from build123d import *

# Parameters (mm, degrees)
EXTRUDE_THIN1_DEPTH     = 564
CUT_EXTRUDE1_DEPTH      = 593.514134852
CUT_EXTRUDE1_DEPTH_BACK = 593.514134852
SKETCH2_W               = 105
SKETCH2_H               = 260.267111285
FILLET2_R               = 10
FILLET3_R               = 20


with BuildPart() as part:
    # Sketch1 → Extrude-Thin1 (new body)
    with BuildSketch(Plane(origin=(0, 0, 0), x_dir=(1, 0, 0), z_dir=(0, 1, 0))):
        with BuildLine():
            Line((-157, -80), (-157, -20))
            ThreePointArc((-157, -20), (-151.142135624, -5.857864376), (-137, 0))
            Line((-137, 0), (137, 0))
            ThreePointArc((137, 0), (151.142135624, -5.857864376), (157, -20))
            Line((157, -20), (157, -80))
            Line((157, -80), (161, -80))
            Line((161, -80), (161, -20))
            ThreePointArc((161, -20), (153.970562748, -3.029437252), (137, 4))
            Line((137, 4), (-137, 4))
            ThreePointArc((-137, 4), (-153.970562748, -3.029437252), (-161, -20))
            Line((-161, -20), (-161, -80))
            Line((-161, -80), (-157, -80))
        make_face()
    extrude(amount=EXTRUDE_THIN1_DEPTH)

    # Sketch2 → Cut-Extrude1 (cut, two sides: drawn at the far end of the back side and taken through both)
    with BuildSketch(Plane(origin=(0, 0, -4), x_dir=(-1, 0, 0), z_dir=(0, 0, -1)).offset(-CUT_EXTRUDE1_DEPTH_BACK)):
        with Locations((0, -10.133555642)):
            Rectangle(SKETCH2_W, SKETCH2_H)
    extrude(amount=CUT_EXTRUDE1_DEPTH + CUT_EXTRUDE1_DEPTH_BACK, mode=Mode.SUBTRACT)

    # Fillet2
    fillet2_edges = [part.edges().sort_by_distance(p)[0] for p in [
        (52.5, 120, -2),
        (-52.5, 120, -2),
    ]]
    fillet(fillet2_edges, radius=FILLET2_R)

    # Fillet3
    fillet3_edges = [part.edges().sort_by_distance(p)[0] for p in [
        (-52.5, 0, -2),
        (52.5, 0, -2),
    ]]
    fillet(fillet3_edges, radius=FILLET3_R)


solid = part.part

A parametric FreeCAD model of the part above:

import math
import FreeCAD as App
import Part
import Sketcher

V = App.Vector
Q = App.Units.Quantity


def edges_at(feature, points):
    """Names of the edges that pass closest to the given points."""
    edges = feature.Shape.Edges
    near = lambda p: min(range(len(edges)), key=lambda i: edges[i].distToShape(Part.Vertex(*p))[0])
    return sorted({f"Edge{near(p) + 1}" for p in points})

doc = App.newDocument("Part")
params = doc.addObject("Spreadsheet::Sheet", "Params")
for row, (alias, value) in enumerate([
    ("sketch1_radius", "20 mm"),
    ("sketch1_radius2", "24 mm"),
    ("sketch1_width", "274 mm"),
    ("sketch1_height", "60 mm"),
    ("pad1_length", "564 mm"),
    ("sketch2_width", "105 mm"),
    ("fillet_radius", "10 mm"),
    ("fillet2_radius", "20 mm"),
], start=1):
    params.set(f"A{row}", alias)
    params.set(f"B{row}", "=" + value)
    params.setAlias(f"B{row}", alias)

body = doc.addObject("PartDesign::Body", "Body")

sketch1 = doc.addObject("Sketcher::SketchObject", "Sketch")
body.addObject(sketch1)
sketch1.AttachmentSupport = (doc.XZ_Plane, [""])
sketch1.MapMode = "FlatFace"
sketch1.addGeometry([
    Part.LineSegment(V(-157, 80, 0), V(-157, 20, 0)),
    Part.ArcOfCircle(Part.Circle(V(-137, 20, 0), V(0, 0, 1), 20), math.radians(180), math.radians(270)),
    Part.LineSegment(V(-137, 0, 0), V(137, 0, 0)),
    Part.ArcOfCircle(Part.Circle(V(137, 20, 0), V(0, 0, 1), 20), math.radians(-90), math.radians(0)),
    Part.LineSegment(V(157, 20, 0), V(157, 80, 0)),
    Part.LineSegment(V(157, 80, 0), V(161, 80, 0)),
    Part.LineSegment(V(161, 80, 0), V(161, 20, 0)),
    Part.ArcOfCircle(Part.Circle(V(137, 20, 0), V(0, 0, 1), 24), math.radians(-90), math.radians(0)),
    Part.LineSegment(V(137, -4, 0), V(-137, -4, 0)),
    Part.ArcOfCircle(Part.Circle(V(-137, 20, 0), V(0, 0, 1), 24), math.radians(-180), math.radians(-90)),
    Part.LineSegment(V(-161, 20, 0), V(-161, 80, 0)),
    Part.LineSegment(V(-161, 80, 0), V(-157, 80, 0)),
], False)
sketch1.addConstraint([
    Sketcher.Constraint("Tangent", 0, 2, 1, 1),
    Sketcher.Constraint("Tangent", 1, 2, 2, 1),
    Sketcher.Constraint("Tangent", 2, 2, 3, 1),
    Sketcher.Constraint("Tangent", 3, 2, 4, 1),
    Sketcher.Constraint("Coincident", 4, 2, 5, 1),
    Sketcher.Constraint("Coincident", 5, 2, 6, 1),
    Sketcher.Constraint("Tangent", 6, 2, 7, 2),
    Sketcher.Constraint("Tangent", 7, 1, 8, 1),
    Sketcher.Constraint("Tangent", 8, 2, 9, 2),
    Sketcher.Constraint("Tangent", 9, 1, 10, 1),
    Sketcher.Constraint("Coincident", 10, 2, 11, 1),
    Sketcher.Constraint("Coincident", 11, 2, 0, 1),
    Sketcher.Constraint("Vertical", 0),
    Sketcher.Constraint("Horizontal", 2),
    Sketcher.Constraint("Vertical", 4),
    Sketcher.Constraint("Horizontal", 5),
    Sketcher.Constraint("Vertical", 6),
    Sketcher.Constraint("Horizontal", 8),
    Sketcher.Constraint("Vertical", 10),
    Sketcher.Constraint("Horizontal", 11),
    Sketcher.Constraint("Coincident", 7, 3, 3, 3),
    Sketcher.Constraint("Coincident", 9, 3, 1, 3),
    Sketcher.Constraint("Equal", 1, 3),
    Sketcher.Constraint("Symmetric", 1, 2, 2, 2, -1, 1),
    Sketcher.Constraint("Horizontal", 5, 2, 10, 2),
    Sketcher.Constraint("Radius", 1, Q("20 mm")),
    Sketcher.Constraint("Radius", 7, Q("24 mm")),
    Sketcher.Constraint("DistanceX", 2, 1, 2, 2, Q("274 mm")),
    Sketcher.Constraint("DistanceY", 0, 2, 0, 1, Q("60 mm")),
])
sketch1.setExpression("Constraints[25]", "Params.sketch1_radius")
sketch1.setExpression("Constraints[26]", "Params.sketch1_radius2")
sketch1.setExpression("Constraints[27]", "Params.sketch1_width")
sketch1.setExpression("Constraints[28]", "Params.sketch1_height")
pad1 = doc.addObject("PartDesign::Pad", "Pad")
body.addObject(pad1)
pad1.Profile = sketch1
pad1.setExpression("Length", "Params.pad1_length")
pad1.Reversed = True

sketch2 = doc.addObject("Sketcher::SketchObject", "Sketch001")
body.addObject(sketch2)
sketch2.AttachmentSupport = (doc.XY_Plane, [""])
sketch2.MapMode = "FlatFace"
sketch2.AttachmentOffset = App.Placement(V(0, 0, -4), App.Rotation())
sketch2.addGeometry([
    Part.LineSegment(V(52, 120, 0), V(52, -140, 0)),
    Part.LineSegment(V(52, -140, 0), V(-52, -140, 0)),
    Part.LineSegment(V(-52, -140, 0), V(-52, 120, 0)),
    Part.LineSegment(V(-52, 120, 0), V(52, 120, 0)),
], False)
sketch2.addConstraint([
    Sketcher.Constraint("Coincident", 0, 2, 1, 1),
    Sketcher.Constraint("Coincident", 1, 2, 2, 1),
    Sketcher.Constraint("Coincident", 2, 2, 3, 1),
    Sketcher.Constraint("Coincident", 3, 2, 0, 1),
    Sketcher.Constraint("Vertical", 0),
    Sketcher.Constraint("Horizontal", 1),
    Sketcher.Constraint("Vertical", 2),
    Sketcher.Constraint("Horizontal", 3),
    Sketcher.Constraint("DistanceX", 1, 2, 1, 1, Q("105 mm")),
    Sketcher.Constraint("DistanceY", -1, 1, 2, 2, Q("120 mm")),
    Sketcher.Constraint("DistanceX", -1, 1, 0, 2, Q("52.5 mm")),
    Sketcher.Constraint("DistanceY", 0, 2, 0, 1, Q("260.267111 mm")),
])
sketch2.setExpression("Constraints[8]", "Params.sketch2_width")
pocket1 = doc.addObject("PartDesign::Pocket", "Pocket")
body.addObject(pocket1)
pocket1.Profile = sketch2
pocket1.Type = "ThroughAll"
pocket1.Midplane = True
doc.recompute()

fillet = doc.addObject("PartDesign::Fillet", "Fillet")
body.addObject(fillet)
fillet.Base = (pocket1, edges_at(pocket1, [(52.5, 120, -2), (-52.5, 120, -2)]))
fillet.setExpression("Radius", "Params.fillet_radius")
doc.recompute()

fillet2 = doc.addObject("PartDesign::Fillet", "Fillet001")
body.addObject(fillet2)
fillet2.Base = (fillet, edges_at(fillet, [(-52.5, 0, -2), (52.5, 0, -2)]))
fillet2.setExpression("Radius", "Params.fillet2_radius")

doc.recompute()
